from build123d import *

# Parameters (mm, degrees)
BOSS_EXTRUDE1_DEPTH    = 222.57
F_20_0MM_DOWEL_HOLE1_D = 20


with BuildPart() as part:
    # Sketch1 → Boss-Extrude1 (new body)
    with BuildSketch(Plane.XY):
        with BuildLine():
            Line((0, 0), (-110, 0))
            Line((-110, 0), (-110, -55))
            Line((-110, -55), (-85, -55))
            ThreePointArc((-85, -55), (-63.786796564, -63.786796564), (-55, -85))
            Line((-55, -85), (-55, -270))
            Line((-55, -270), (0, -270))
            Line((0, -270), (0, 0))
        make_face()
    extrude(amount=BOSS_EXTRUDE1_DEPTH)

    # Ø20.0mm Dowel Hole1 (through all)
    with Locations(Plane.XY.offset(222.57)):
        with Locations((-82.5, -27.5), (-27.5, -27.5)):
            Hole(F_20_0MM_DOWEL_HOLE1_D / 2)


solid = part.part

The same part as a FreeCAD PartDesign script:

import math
import FreeCAD as App
import Part
import Sketcher
from FreeCAD import Vector
Q = App.Units.Quantity

doc = App.newDocument("Part")
body = doc.addObject("PartDesign::Body", "Body")

sketch1 = body.newObject("Sketcher::SketchObject", "Sketch")
sketch1.AttachmentSupport = (doc.getObject("XY_Plane"), [""])
sketch1.MapMode = "FlatFace"
sketch1.addGeometry([
    Part.LineSegment(Vector(0, 0, 0), Vector(-110, 0, 0)),
    Part.LineSegment(Vector(-110, 0, 0), Vector(-110, -55, 0)),
    Part.LineSegment(Vector(-110, -55, 0), Vector(-85, -55, 0)),
    Part.ArcOfCircle(Part.Circle(Vector(-85, -85, 0), Vector(0, 0, 1), 30), math.radians(0), math.radians(90)),
    Part.LineSegment(Vector(-55, -85, 0), Vector(-55, -270, 0)),
    Part.LineSegment(Vector(-55, -270, 0), Vector(0, -270, 0)),
    Part.LineSegment(Vector(0, -270, 0), Vector(0, 0, 0)),
], False)
sketch1.addConstraint([
    Sketcher.Constraint("Coincident", 0, 2, 1, 1),
    Sketcher.Constraint("Coincident", 1, 2, 2, 1),
    Sketcher.Constraint("Tangent", 2, 2, 3, 2),
    Sketcher.Constraint("Tangent", 3, 1, 4, 1),
    Sketcher.Constraint("Coincident", 4, 2, 5, 1),
    Sketcher.Constraint("Coincident", 5, 2, 6, 1),
    Sketcher.Constraint("Coincident", 6, 2, 0, 1),
    Sketcher.Constraint("Horizontal", 0),
    Sketcher.Constraint("Vertical", 1),
    Sketcher.Constraint("Horizontal", 2),
    Sketcher.Constraint("Vertical", 4),
    Sketcher.Constraint("Horizontal", 5),
    Sketcher.Constraint("Vertical", 6),
    Sketcher.Constraint("Coincident", 6, 2, -1, 1),
    Sketcher.Constraint("Equal", 5, 1),
    Sketcher.Constraint("Radius", 3, Q("30 mm")),
    Sketcher.Constraint("DistanceX", 0, 2, 0, 1, Q("110 mm")),
    Sketcher.Constraint("DistanceX", 2, 1, 2, 2, Q("25 mm")),
    Sketcher.Constraint("DistanceY", 4, 2, 4, 1, Q("185 mm")),
])
pad1 = body.newObject("PartDesign::Pad", "Pad")
pad1.Profile = sketch1
pad1.Length = 222.57

sketch2 = body.newObject("Sketcher::SketchObject", "Sketch001")
sketch2.AttachmentSupport = (doc.getObject("XY_Plane"), [""])
sketch2.MapMode = "FlatFace"
sketch2.AttachmentOffset = App.Placement(Vector(0, 0, 222.57), App.Rotation())
sketch2.addGeometry([
    Part.Circle(Vector(-82, -28, 0), Vector(0, 0, 1), 10),
    Part.Circle(Vector(-28, -28, 0), Vector(0, 0, 1), 10),
], False)
sketch2.addConstraint([
    Sketcher.Constraint("Equal", 0, 1),
    Sketcher.Constraint("Horizontal", 0, 3, 1, 3),
    Sketcher.Constraint("Diameter", 0, Q("20 mm")),
    Sketcher.Constraint("DistanceX", 0, 3, 1, 3, Q("55 mm")),
    Sketcher.Constraint("DistanceX", 0, 3, -1, 1, Q("82.5 mm")),
    Sketcher.Constraint("DistanceY", 0, 3, -1, 1, Q("27.5 mm")),
])
doc.recompute()
hole = body.newObject("PartDesign::Hole", "Hole")
hole.Profile = sketch2
hole.ThreadType = "None"
hole.Diameter = 20
hole.DepthType = "ThroughAll"

doc.recompute()
